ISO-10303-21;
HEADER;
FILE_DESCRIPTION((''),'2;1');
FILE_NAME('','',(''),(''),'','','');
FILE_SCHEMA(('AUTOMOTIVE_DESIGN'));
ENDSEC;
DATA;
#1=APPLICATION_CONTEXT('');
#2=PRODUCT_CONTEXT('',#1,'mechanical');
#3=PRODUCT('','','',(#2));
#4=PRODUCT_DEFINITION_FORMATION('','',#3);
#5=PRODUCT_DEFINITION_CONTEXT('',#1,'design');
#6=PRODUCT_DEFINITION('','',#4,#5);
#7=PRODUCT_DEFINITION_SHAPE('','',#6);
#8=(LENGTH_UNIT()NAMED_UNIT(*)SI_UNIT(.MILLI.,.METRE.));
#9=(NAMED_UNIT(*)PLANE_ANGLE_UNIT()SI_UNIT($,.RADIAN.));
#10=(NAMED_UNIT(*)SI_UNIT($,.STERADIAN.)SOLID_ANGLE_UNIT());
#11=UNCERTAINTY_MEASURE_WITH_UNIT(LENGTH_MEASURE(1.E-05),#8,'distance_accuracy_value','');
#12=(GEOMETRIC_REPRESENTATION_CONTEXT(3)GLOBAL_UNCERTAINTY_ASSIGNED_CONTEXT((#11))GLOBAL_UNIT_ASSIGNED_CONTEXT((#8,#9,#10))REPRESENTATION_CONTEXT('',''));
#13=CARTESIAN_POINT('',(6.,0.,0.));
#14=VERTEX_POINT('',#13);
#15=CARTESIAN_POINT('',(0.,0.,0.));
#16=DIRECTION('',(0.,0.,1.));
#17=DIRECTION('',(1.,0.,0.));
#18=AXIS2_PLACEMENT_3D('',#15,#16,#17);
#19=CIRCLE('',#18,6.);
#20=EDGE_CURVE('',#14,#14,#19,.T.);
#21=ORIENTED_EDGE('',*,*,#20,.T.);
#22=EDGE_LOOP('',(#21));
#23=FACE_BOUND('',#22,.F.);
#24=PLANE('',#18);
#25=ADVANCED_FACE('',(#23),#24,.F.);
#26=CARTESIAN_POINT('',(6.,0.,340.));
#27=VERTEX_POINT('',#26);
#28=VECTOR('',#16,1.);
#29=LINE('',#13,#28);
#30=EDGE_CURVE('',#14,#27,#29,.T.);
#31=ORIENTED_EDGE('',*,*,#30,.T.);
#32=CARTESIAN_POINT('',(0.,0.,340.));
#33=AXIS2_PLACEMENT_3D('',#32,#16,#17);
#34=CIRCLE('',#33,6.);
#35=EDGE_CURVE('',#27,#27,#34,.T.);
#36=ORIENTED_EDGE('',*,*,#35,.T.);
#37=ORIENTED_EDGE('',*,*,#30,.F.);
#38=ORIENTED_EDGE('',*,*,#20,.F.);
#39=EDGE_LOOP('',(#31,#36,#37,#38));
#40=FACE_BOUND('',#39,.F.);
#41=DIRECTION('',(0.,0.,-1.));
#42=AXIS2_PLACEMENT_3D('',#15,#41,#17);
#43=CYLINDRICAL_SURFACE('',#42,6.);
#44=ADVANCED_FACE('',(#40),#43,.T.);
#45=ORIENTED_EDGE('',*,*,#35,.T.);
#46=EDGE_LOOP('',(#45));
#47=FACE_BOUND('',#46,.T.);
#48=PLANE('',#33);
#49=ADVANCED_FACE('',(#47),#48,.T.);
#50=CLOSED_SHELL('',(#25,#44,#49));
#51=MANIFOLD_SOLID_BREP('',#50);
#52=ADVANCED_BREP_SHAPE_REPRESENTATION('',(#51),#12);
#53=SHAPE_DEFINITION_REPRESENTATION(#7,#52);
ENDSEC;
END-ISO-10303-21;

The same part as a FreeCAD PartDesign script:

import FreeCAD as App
import Part
import Sketcher

V = App.Vector

doc = App.newDocument("Part")
params = doc.addObject("Spreadsheet::Sheet", "Params")
for row, (alias, value) in enumerate([
    ("sketch1_diameter", "12 mm"),
    ("pad1_length", "340 mm"),
], start=1):
    params.set(f"A{row}", alias)
    params.set(f"B{row}", "=" + value)
    params.setAlias(f"B{row}", alias)

body = doc.addObject("PartDesign::Body", "Body")

# Sketch on XY plane
sketch1 = body.newObject("Sketcher::SketchObject", "Sketch")
sketch1.AttachmentSupport = (doc.getObject("XY_Plane"), [""])
sketch1.MapMode = "FlatFace"
sketch1.addGeometry(Part.Circle(V(0, 0, 0), V(0, 0, 1), 6), False)
sketch1.addConstraint([
    Sketcher.Constraint("Coincident", 0, 3, -1, 1),
    Sketcher.Constraint("Diameter", 0, 12.0),
])
sketch1.setExpression("Constraints[1]", "Params.sketch1_diameter")
pad1 = body.newObject("PartDesign::Pad", "Pad")
pad1.Profile = sketch1
pad1.setExpression("Length", "Params.pad1_length")

doc.recompute()
